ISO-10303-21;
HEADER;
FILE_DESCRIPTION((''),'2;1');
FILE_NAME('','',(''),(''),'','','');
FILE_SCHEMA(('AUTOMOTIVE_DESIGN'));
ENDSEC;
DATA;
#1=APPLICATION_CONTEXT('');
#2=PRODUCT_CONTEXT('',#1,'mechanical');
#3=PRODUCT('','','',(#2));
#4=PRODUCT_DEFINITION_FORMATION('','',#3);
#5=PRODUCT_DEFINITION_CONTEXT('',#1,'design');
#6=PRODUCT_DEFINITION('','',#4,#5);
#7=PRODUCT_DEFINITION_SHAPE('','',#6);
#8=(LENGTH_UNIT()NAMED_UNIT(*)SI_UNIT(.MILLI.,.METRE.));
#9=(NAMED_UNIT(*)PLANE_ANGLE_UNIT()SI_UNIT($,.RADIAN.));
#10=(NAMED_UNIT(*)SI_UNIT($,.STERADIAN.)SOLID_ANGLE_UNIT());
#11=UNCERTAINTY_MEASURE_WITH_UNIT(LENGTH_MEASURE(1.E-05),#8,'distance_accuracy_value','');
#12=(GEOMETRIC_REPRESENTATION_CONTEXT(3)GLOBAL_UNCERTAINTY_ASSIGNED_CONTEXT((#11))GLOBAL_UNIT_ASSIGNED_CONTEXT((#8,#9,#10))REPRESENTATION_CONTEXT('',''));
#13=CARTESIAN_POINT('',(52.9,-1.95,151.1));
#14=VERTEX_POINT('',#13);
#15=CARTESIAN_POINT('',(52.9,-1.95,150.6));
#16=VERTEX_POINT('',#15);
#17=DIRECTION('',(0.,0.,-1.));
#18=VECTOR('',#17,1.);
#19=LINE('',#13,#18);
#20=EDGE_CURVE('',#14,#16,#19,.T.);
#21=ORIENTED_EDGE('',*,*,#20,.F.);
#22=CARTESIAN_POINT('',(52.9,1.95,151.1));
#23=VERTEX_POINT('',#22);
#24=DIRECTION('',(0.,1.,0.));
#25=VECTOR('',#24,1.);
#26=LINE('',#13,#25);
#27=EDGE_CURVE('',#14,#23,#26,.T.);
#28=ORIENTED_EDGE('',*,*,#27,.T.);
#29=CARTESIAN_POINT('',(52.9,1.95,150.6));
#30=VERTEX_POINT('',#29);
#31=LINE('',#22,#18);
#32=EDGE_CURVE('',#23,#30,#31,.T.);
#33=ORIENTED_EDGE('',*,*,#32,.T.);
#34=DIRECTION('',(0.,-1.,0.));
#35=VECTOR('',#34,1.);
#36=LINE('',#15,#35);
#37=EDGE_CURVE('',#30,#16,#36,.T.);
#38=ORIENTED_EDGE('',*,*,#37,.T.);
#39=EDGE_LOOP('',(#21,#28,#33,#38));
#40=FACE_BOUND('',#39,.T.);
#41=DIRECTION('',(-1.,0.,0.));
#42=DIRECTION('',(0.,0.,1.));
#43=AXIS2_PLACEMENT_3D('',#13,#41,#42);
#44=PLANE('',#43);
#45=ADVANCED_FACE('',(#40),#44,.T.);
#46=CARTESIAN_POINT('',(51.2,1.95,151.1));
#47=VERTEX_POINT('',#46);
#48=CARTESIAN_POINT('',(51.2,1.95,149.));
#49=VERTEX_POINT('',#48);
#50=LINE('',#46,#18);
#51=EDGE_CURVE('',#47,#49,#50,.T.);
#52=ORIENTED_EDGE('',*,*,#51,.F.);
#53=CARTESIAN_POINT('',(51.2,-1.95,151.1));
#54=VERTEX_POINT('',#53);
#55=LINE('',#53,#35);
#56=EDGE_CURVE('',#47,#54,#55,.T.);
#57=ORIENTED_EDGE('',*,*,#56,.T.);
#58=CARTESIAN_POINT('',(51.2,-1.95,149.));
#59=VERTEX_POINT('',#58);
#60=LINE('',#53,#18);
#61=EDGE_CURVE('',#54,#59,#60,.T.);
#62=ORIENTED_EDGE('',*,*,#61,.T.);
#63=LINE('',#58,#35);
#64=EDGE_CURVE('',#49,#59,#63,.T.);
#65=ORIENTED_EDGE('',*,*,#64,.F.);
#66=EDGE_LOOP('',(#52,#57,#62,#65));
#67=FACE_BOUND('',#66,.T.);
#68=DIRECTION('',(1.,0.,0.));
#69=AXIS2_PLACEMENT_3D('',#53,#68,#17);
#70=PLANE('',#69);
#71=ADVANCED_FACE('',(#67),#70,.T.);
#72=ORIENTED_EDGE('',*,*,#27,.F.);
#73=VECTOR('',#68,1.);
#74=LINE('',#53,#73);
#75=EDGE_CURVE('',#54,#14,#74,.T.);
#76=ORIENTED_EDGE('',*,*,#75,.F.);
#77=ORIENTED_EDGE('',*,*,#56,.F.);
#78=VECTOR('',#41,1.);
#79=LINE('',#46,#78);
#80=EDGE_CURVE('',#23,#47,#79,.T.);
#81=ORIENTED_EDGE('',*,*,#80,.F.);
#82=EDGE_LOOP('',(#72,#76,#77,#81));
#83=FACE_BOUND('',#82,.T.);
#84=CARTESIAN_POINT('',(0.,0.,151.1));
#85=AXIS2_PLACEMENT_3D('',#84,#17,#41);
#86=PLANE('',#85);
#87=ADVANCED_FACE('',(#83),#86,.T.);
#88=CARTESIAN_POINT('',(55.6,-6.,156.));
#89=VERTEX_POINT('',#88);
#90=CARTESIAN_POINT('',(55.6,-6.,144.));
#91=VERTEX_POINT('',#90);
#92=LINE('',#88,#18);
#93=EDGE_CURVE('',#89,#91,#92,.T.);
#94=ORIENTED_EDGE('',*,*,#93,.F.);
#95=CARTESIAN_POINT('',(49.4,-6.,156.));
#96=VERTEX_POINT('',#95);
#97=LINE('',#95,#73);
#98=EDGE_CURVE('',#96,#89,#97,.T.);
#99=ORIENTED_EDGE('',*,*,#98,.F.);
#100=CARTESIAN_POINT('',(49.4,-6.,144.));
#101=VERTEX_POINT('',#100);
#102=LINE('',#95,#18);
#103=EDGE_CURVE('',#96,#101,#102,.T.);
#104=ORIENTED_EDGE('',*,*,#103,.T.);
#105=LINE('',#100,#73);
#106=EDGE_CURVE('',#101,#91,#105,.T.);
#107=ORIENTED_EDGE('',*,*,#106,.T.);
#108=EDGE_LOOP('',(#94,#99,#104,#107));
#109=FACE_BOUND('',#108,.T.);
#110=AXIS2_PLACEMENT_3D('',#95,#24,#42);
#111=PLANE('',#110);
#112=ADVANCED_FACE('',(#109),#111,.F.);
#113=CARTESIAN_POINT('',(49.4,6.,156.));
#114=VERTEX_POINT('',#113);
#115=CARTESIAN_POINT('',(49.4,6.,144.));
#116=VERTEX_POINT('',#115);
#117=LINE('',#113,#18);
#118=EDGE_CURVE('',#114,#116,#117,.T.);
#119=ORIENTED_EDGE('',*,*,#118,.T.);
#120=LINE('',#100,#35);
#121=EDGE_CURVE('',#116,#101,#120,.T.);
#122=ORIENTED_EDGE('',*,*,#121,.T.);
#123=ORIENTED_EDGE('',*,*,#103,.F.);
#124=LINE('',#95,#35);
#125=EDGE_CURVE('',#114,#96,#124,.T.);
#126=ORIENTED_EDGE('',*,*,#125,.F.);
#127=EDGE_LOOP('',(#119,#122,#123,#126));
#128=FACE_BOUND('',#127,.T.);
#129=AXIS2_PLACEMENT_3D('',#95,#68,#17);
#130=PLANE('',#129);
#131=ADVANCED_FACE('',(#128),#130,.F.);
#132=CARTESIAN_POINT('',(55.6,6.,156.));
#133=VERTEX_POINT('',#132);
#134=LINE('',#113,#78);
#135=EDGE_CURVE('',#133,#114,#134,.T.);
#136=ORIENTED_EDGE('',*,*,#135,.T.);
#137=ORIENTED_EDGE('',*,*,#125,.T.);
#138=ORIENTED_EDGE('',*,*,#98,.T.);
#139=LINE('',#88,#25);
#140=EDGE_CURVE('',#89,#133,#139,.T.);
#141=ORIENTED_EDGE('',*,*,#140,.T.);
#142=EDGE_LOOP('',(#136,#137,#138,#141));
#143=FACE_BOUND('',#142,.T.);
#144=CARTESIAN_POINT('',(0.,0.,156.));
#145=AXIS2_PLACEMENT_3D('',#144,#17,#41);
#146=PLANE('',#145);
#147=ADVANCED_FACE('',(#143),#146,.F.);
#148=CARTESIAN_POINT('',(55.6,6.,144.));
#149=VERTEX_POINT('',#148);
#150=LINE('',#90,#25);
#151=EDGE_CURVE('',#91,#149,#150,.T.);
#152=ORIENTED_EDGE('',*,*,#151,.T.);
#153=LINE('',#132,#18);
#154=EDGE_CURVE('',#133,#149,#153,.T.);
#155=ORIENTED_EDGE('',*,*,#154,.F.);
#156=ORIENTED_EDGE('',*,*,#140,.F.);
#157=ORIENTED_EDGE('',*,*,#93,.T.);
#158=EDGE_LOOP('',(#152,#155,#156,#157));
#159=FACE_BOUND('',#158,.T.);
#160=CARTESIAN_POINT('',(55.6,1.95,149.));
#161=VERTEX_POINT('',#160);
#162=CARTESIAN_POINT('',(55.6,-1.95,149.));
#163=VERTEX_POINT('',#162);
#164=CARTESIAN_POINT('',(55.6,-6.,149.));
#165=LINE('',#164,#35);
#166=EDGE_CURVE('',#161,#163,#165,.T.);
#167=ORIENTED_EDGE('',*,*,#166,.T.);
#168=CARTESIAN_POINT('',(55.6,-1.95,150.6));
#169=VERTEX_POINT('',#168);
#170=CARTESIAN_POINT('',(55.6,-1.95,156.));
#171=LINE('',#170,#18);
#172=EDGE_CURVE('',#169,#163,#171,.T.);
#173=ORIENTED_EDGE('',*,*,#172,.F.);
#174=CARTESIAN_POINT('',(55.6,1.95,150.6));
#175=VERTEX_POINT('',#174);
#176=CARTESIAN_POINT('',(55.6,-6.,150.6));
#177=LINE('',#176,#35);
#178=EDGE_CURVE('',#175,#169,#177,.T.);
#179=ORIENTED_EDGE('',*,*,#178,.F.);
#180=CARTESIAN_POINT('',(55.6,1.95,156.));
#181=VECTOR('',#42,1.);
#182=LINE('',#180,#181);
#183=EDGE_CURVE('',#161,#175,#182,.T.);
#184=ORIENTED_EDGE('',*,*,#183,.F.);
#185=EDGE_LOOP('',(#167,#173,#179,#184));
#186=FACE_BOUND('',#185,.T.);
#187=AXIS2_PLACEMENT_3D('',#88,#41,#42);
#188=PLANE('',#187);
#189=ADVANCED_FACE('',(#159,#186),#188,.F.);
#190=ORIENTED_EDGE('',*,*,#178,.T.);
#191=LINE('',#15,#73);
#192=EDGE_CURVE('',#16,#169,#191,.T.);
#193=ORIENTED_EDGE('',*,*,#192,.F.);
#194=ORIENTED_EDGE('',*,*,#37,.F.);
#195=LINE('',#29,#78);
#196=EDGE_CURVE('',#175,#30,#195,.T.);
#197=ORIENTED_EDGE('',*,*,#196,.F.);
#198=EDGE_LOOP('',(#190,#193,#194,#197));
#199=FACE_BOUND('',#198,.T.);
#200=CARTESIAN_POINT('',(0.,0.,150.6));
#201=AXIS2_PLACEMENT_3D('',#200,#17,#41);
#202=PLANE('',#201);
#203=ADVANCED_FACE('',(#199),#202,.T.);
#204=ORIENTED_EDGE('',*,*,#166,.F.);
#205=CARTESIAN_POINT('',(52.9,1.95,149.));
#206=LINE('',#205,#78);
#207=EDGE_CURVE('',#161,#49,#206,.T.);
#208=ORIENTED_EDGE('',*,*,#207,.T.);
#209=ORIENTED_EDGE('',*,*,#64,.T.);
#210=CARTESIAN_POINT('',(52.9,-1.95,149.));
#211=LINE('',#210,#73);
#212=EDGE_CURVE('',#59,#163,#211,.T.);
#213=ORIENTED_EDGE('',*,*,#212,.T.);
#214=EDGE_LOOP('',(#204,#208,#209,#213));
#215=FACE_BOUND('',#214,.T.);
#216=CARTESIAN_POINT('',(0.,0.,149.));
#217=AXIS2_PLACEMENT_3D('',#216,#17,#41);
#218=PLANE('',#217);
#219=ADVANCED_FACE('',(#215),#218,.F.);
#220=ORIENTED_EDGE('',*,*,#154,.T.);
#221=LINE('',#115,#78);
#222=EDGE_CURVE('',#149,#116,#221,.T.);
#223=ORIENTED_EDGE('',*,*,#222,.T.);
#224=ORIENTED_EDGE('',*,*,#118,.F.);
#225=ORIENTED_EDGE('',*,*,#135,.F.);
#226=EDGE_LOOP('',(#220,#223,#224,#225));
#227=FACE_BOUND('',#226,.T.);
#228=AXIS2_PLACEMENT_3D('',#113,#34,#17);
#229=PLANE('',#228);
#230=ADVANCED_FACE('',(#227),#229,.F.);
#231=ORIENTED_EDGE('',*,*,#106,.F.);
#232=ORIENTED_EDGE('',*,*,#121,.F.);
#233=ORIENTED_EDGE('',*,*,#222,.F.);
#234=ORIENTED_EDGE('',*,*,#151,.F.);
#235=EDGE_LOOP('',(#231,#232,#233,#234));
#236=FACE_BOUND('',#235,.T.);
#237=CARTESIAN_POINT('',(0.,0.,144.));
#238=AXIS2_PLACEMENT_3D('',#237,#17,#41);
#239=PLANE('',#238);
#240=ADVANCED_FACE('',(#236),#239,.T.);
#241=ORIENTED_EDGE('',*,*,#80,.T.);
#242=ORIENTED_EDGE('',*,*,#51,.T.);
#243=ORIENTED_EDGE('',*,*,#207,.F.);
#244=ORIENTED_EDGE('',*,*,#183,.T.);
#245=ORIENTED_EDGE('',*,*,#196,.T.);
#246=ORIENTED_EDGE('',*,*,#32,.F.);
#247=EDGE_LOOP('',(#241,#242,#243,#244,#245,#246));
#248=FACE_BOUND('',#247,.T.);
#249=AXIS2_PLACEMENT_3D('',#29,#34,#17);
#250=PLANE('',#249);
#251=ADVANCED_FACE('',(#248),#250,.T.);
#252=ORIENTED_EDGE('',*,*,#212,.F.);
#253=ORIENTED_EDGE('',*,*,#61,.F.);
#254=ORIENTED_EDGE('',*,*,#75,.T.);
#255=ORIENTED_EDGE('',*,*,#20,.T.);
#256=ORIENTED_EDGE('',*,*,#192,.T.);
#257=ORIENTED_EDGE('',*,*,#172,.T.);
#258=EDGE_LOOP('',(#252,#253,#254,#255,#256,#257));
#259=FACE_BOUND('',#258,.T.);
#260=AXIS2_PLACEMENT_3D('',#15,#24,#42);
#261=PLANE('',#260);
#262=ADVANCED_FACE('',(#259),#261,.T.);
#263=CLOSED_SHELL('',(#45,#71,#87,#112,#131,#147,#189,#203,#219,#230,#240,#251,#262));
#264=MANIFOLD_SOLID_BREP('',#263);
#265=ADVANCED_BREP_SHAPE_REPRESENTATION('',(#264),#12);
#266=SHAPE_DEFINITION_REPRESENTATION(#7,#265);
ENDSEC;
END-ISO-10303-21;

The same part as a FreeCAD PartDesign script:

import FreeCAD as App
import Part
import Sketcher

V = App.Vector
Q = App.Units.Quantity


def add_polygon(sketch, points):
    """Adds a closed chain of lines whose ends are joined by coincident constraints."""
    first, n = sketch.GeometryCount, len(points)
    for a, b in zip(points, points[1:] + points[:1]):
        sketch.addGeometry(Part.LineSegment(App.Vector(*a, 0), App.Vector(*b, 0)), False)
    for i in range(n):
        sketch.addConstraint(Sketcher.Constraint("Coincident", first + i, 2, first + (i + 1) % n, 1))

doc = App.newDocument("Part")
params = doc.addObject("Spreadsheet::Sheet", "Params")
for row, (alias, value) in enumerate([
    ("sketch1_height", "12 mm"),
    ("sketch1_width", "6.2 mm"),
    ("pad1_length", "12 mm"),
    ("sketch2_width", "2.8 mm"),
    ("sketch2_height", "3.9 mm"),
    ("pad2_length", "1.6 mm"),
    ("sketch3_width", "1.7 mm"),
    ("sketch3_height", "3.9 mm"),
    ("pad3_length", "2.1 mm"),
], start=1):
    params.set(f"A{row}", alias)
    params.set(f"B{row}", "=" + value)
    params.setAlias(f"B{row}", alias)

body = doc.addObject("PartDesign::Body", "Body")

# Sketch on XY plane
sketch1 = body.newObject("Sketcher::SketchObject", "Sketch")
sketch1.AttachmentSupport = (doc.getObject("XY_Plane"), [""])
sketch1.MapMode = "FlatFace"
sketch1.AttachmentOffset = App.Placement(V(0, 0, 144), App.Rotation())
add_polygon(sketch1, [(49, 6), (49, -6), (56, -6), (56, 6)])  # lines 0-3
sketch1.addConstraint([
    Sketcher.Constraint("Vertical", 0),
    Sketcher.Constraint("Horizontal", 1),
    Sketcher.Constraint("Vertical", 2),
    Sketcher.Constraint("Horizontal", 3),
    Sketcher.Constraint("DistanceY", 0, 2, 0, 1, Q("12 mm")),
    Sketcher.Constraint("DistanceX", 1, 1, 1, 2, Q("6.2 mm")),
    Sketcher.Constraint("DistanceY", 0, 2, -1, 1, Q("6 mm")),
    Sketcher.Constraint("DistanceX", -1, 1, 0, 2, Q("49.4 mm")),
])
sketch1.setExpression("Constraints[8]", "Params.sketch1_height")
sketch1.setExpression("Constraints[9]", "Params.sketch1_width")
pad1 = body.newObject("PartDesign::Pad", "Pad")
pad1.Profile = sketch1
pad1.setExpression("Length", "Params.pad1_length")
body2 = doc.addObject("PartDesign::Body", "Body001")

# Sketch on XY plane
sketch2 = body2.newObject("Sketcher::SketchObject", "Sketch001")
sketch2.AttachmentSupport = (doc.getObject("XY_Plane001"), [""])
sketch2.MapMode = "FlatFace"
sketch2.AttachmentOffset = App.Placement(V(0, 0, 149), App.Rotation())
add_polygon(sketch2, [(52.9, 1.9), (52.9, -1.9), (55.7, -1.9), (55.7, 1.9)])  # lines 0-3
sketch2.addConstraint([
    Sketcher.Constraint("Vertical", 0),
    Sketcher.Constraint("Horizontal", 1),
    Sketcher.Constraint("Vertical", 2),
    Sketcher.Constraint("Horizontal", 3),
    Sketcher.Constraint("DistanceX", 1, 1, 1, 2, Q("2.8 mm")),
    Sketcher.Constraint("DistanceY", 0, 2, 0, 1, Q("3.9 mm")),
    Sketcher.Constraint("DistanceX", -1, 1, 0, 2, Q("52.9 mm")),
    Sketcher.Constraint("DistanceY", 0, 2, -1, 1, Q("1.95 mm")),
])
sketch2.setExpression("Constraints[8]", "Params.sketch2_width")
sketch2.setExpression("Constraints[9]", "Params.sketch2_height")
pad2 = body2.newObject("PartDesign::Pad", "Pad001")
pad2.Profile = sketch2
pad2.setExpression("Length", "Params.pad2_length")
doc.recompute()

boolean = body.newObject("PartDesign::Boolean", "Boolean")
boolean.Type = "Cut"
boolean.addObjects([body2])
body3 = doc.addObject("PartDesign::Body", "Body002")

# Sketch on XY plane
sketch3 = body3.newObject("Sketcher::SketchObject", "Sketch002")
sketch3.AttachmentSupport = (doc.getObject("XY_Plane002"), [""])
sketch3.MapMode = "FlatFace"
sketch3.AttachmentOffset = App.Placement(V(0, 0, 149), App.Rotation())
add_polygon(sketch3, [(51.2, 1.9), (51.2, -1.9), (52.9, -1.9), (52.9, 1.9)])  # lines 0-3
sketch3.addConstraint([
    Sketcher.Constraint("Vertical", 0),
    Sketcher.Constraint("Horizontal", 1),
    Sketcher.Constraint("Vertical", 2),
    Sketcher.Constraint("Horizontal", 3),
    Sketcher.Constraint("DistanceX", 1, 1, 1, 2, Q("1.7 mm")),
    Sketcher.Constraint("DistanceY", 0, 2, 0, 1, Q("3.9 mm")),
    Sketcher.Constraint("DistanceX", -1, 1, 0, 2, Q("51.2 mm")),
    Sketcher.Constraint("DistanceY", 0, 2, -1, 1, Q("1.95 mm")),
])
sketch3.setExpression("Constraints[8]", "Params.sketch3_width")
sketch3.setExpression("Constraints[9]", "Params.sketch3_height")
pad3 = body3.newObject("PartDesign::Pad", "Pad002")
pad3.Profile = sketch3
pad3.setExpression("Length", "Params.pad3_length")
doc.recompute()

boolean2 = body.newObject("PartDesign::Boolean", "Boolean001")
boolean2.Type = "Cut"
boolean2.addObjects([body3])

doc.recompute()
